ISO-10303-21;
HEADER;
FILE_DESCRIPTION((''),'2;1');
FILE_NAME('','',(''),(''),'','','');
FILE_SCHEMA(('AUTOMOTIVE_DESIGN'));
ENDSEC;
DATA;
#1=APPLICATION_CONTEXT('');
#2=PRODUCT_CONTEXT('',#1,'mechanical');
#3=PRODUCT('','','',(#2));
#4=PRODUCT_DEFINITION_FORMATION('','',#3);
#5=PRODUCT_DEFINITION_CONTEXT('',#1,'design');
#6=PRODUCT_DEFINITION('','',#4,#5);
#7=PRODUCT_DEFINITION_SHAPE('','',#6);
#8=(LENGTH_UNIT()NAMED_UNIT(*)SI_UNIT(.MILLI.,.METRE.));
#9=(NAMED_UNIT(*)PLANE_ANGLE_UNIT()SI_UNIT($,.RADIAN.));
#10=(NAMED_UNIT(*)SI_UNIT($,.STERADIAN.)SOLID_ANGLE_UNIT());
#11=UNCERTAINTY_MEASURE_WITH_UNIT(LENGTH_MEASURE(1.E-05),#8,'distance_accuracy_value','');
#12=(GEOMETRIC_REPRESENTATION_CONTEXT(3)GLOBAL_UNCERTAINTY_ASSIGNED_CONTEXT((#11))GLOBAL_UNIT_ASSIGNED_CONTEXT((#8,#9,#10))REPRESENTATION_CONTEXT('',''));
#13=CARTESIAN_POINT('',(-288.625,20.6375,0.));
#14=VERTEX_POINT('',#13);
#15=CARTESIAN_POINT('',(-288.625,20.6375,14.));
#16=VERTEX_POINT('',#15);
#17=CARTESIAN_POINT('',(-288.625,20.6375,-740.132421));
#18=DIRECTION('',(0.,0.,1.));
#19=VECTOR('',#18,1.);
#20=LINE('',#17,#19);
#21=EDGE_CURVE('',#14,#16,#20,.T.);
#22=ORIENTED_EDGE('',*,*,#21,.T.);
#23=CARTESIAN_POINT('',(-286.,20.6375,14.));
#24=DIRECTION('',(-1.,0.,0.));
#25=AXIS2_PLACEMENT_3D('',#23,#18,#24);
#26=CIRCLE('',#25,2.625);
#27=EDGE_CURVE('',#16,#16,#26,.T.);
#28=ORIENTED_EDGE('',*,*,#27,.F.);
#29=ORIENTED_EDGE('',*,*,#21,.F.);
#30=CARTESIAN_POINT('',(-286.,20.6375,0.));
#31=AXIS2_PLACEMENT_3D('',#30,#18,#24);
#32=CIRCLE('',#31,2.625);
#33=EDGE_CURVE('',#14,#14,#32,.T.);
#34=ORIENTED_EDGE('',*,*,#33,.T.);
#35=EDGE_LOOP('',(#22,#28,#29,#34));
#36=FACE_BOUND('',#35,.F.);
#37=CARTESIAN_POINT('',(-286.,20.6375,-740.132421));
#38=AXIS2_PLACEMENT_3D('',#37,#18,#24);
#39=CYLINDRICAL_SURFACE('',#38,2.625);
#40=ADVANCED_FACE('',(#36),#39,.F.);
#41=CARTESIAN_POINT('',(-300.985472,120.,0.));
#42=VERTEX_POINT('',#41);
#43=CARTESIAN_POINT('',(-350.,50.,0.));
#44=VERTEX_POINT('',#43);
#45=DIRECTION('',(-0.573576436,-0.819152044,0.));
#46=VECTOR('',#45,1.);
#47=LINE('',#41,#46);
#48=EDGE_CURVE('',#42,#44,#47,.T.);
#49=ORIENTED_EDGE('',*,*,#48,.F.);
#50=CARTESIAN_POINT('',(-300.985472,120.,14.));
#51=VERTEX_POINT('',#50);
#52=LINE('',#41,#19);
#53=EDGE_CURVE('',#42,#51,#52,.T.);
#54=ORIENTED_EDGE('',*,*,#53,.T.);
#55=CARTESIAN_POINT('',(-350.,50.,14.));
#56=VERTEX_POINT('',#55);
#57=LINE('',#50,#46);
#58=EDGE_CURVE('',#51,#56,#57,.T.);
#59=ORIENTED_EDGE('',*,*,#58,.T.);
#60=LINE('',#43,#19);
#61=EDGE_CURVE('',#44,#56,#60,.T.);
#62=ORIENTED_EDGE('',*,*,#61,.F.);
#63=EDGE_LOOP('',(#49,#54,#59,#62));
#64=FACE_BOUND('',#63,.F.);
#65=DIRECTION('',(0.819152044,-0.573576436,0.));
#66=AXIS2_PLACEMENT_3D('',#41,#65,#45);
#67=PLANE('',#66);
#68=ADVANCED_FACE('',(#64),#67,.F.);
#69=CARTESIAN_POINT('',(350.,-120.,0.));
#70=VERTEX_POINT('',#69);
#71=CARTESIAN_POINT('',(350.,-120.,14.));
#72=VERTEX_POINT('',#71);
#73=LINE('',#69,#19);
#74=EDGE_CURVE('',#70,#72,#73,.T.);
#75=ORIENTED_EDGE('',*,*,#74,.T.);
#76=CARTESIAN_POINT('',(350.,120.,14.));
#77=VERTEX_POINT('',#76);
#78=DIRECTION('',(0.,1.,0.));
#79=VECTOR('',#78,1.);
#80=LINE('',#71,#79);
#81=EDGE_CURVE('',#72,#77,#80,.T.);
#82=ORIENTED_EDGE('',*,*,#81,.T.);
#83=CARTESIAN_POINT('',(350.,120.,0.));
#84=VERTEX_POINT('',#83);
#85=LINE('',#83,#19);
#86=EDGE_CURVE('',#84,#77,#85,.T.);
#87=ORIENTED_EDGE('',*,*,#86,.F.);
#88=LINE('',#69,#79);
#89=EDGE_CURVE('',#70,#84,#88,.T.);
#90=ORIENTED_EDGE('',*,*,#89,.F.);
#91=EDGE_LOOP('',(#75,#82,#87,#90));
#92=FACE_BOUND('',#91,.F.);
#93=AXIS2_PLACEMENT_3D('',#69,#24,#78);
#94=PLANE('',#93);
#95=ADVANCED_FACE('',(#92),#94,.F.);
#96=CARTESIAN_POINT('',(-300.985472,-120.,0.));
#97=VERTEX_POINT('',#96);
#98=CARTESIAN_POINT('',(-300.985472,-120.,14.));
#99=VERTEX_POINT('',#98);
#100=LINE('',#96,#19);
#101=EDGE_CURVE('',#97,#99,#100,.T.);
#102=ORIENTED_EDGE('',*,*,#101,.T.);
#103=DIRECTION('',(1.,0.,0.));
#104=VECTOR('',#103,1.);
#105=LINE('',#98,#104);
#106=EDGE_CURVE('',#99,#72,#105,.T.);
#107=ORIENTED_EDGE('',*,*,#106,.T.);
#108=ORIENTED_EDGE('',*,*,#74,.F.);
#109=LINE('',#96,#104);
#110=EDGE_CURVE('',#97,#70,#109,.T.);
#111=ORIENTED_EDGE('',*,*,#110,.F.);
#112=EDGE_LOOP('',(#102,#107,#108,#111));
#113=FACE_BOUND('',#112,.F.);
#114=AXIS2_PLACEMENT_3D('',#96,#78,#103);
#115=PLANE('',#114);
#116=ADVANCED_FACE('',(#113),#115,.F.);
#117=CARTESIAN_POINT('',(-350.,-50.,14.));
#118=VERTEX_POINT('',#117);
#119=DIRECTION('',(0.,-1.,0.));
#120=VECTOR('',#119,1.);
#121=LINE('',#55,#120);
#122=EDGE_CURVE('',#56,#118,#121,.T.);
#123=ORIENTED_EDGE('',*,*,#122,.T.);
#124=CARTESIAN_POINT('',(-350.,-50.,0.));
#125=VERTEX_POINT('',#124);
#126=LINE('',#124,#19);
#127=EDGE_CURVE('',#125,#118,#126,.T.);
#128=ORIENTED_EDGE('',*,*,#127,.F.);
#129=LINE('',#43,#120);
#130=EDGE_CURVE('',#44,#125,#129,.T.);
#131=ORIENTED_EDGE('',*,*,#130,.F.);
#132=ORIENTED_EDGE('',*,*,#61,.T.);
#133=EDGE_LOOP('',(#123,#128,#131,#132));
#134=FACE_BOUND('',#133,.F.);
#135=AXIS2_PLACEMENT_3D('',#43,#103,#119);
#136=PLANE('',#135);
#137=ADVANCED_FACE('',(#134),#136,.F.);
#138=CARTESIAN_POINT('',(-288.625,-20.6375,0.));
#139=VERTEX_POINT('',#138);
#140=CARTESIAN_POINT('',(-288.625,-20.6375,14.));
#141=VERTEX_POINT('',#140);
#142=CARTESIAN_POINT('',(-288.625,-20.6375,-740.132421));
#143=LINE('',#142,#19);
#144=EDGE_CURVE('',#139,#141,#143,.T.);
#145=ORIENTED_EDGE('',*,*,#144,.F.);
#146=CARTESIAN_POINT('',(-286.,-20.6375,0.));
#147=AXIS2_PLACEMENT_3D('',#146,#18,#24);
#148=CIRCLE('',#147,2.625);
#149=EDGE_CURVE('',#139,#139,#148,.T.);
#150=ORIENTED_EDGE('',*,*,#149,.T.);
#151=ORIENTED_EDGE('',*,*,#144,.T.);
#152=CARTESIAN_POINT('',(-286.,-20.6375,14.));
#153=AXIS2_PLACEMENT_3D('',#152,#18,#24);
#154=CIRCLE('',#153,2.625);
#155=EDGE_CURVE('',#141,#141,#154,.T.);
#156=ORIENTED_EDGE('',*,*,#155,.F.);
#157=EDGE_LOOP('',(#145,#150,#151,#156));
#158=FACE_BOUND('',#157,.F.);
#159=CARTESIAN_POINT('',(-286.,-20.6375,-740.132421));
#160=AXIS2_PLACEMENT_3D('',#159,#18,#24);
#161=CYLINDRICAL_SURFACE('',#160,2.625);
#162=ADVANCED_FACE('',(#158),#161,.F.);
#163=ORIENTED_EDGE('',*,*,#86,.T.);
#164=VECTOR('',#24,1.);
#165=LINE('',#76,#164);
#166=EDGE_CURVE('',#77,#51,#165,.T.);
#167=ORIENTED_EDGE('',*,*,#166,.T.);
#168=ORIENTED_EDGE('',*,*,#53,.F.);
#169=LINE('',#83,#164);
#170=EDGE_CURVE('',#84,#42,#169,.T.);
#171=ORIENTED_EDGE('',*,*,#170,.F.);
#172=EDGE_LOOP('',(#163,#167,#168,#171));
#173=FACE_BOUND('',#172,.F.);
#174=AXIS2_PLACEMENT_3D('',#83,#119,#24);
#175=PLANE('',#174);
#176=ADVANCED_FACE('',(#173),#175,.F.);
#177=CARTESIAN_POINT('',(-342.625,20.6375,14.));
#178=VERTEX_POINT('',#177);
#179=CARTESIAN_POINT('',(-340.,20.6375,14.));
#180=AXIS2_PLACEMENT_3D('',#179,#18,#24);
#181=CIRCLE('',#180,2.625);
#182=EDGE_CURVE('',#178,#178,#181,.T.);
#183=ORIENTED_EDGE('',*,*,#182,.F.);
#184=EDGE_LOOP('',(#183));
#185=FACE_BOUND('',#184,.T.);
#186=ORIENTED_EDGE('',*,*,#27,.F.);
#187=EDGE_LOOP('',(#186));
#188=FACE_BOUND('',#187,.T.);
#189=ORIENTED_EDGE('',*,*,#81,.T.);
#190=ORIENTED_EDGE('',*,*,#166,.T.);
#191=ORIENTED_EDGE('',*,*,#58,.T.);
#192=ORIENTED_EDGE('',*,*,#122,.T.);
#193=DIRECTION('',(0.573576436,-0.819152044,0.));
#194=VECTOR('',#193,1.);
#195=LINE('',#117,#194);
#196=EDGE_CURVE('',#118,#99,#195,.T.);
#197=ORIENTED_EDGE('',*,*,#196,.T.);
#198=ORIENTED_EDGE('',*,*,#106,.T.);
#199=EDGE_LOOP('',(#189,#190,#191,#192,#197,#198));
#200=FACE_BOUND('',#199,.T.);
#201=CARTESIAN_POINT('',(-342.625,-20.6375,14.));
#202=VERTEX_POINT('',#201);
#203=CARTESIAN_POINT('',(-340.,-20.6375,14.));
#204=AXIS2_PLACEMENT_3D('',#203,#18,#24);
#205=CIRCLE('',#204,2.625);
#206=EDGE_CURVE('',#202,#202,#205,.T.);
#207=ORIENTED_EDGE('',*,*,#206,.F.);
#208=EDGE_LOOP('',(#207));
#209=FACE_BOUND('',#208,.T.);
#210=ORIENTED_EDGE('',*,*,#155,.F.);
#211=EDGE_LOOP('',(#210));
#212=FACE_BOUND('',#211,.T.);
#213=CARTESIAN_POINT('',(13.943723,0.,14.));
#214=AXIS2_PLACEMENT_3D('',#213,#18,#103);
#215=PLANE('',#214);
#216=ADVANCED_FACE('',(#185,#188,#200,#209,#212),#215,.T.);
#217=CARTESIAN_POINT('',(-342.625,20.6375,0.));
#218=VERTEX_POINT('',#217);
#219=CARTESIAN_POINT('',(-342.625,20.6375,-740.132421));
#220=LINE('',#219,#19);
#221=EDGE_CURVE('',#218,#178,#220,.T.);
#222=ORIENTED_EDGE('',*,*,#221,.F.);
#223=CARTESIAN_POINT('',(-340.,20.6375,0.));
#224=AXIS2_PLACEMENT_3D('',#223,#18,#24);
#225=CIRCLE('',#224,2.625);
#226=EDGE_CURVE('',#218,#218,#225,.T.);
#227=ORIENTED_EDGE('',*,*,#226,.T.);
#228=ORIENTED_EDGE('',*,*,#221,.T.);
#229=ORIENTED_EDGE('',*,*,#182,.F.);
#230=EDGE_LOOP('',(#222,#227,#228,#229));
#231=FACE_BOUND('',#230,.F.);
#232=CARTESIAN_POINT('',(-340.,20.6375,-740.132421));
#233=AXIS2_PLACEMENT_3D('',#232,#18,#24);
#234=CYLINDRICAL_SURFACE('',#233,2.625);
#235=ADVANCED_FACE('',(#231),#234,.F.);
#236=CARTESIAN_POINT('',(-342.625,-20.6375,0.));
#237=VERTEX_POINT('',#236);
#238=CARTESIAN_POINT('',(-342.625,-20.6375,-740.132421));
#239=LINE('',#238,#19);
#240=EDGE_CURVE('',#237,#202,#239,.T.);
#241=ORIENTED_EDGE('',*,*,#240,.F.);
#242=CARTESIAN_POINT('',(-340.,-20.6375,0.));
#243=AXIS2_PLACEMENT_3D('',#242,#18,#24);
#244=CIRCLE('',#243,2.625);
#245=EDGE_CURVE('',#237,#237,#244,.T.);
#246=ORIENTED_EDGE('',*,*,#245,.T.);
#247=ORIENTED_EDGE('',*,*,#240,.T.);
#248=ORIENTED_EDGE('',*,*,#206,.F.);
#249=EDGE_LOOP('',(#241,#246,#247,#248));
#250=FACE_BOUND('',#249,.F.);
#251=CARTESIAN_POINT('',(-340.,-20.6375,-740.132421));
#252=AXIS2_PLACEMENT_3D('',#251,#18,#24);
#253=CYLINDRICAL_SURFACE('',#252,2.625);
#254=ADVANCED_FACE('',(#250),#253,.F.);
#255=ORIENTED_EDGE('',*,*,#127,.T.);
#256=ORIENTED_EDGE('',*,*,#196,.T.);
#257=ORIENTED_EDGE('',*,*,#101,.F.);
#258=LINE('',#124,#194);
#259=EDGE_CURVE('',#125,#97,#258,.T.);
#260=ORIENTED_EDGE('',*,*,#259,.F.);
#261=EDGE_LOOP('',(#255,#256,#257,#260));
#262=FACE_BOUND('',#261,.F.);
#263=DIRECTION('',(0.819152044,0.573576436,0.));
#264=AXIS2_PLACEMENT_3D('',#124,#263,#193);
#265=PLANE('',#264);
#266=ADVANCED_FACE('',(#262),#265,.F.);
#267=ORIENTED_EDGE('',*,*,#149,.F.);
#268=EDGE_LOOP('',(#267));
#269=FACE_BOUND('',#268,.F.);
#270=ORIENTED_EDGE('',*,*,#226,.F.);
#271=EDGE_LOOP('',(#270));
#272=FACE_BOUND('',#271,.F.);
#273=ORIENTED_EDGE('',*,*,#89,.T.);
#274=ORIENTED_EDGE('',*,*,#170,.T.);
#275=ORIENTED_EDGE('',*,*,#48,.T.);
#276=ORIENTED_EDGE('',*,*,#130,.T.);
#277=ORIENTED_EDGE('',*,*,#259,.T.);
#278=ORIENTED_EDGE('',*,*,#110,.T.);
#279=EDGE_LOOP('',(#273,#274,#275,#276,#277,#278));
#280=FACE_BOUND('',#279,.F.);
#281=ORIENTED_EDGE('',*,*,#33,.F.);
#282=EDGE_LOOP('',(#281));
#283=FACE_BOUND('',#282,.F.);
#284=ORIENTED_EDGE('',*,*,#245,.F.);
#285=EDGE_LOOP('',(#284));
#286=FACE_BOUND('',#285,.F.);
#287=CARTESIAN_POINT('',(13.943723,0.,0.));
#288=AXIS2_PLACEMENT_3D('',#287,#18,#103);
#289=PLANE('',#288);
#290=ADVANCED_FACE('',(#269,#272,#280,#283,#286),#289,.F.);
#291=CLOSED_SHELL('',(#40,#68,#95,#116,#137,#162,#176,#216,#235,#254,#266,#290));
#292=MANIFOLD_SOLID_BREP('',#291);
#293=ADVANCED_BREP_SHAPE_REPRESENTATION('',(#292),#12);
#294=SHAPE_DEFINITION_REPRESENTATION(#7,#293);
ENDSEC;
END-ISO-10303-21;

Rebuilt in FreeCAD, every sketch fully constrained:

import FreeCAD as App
import Part
import Sketcher
Q = App.Units.Quantity


def add_polygon(sketch, points):
    """Adds a closed chain of lines whose ends are joined by coincident constraints."""
    first, n = sketch.GeometryCount, len(points)
    for a, b in zip(points, points[1:] + points[:1]):
        sketch.addGeometry(Part.LineSegment(App.Vector(*a, 0), App.Vector(*b, 0)), False)
    for i in range(n):
        sketch.addConstraint(Sketcher.Constraint("Coincident", first + i, 2, first + (i + 1) % n, 1))

doc = App.newDocument("Part")
body = doc.addObject("PartDesign::Body", "Body")

# Sketch on XY plane
sketch1 = body.newObject("Sketcher::SketchObject", "Sketch")
sketch1.AttachmentSupport = (doc.getObject("XY_Plane"), [""])
sketch1.MapMode = "FlatFace"
add_polygon(sketch1, [(-301, -120), (350, -120), (350, 120), (-301, 120), (-350, 50), (-350, -50)])  # lines 0-5
sketch1.addConstraint(Sketcher.Constraint("Horizontal", 0))
sketch1.addConstraint(Sketcher.Constraint("Vertical", 1))
sketch1.addConstraint(Sketcher.Constraint("Horizontal", 2))
sketch1.addConstraint(Sketcher.Constraint("Vertical", 4))
sketch1.addConstraint(Sketcher.Constraint("Symmetric", 2, 2, 5, 2, -1))
sketch1.addConstraint(Sketcher.Constraint("Equal", 3, 5))
sketch1.addConstraint(Sketcher.Constraint("DistanceY", 1, 1, 1, 2, Q("240 mm")))
sketch1.addConstraint(Sketcher.Constraint("DistanceY", 4, 2, 4, 1, Q("100 mm")))
sketch1.addConstraint(Sketcher.Constraint("Angle", 3, Q("-125 deg")))
sketch1.addConstraint(Sketcher.Constraint("DistanceX", -1, 1, 0, 2, Q("350 mm")))
sketch1.addConstraint(Sketcher.Constraint("DistanceX", 3, 2, -1, 1, Q("350 mm")))
pad1 = body.newObject("PartDesign::Pad", "Pad")
pad1.Profile = sketch1
pad1.Length = 14

# Sketch on XY plane
sketch2 = body.newObject("Sketcher::SketchObject", "Sketch001")
sketch2.AttachmentSupport = (doc.getObject("XY_Plane"), [""])
sketch2.MapMode = "FlatFace"
sketch2.addGeometry(Part.Circle(App.Vector(-340, 20.6, 0), App.Vector(0, 0, 1), 2.6), False)
sketch2.addGeometry(Part.Circle(App.Vector(-286, 20.6, 0), App.Vector(0, 0, 1), 2.6), False)
sketch2.addGeometry(Part.Circle(App.Vector(-286, -20.6, 0), App.Vector(0, 0, 1), 2.6), False)
sketch2.addGeometry(Part.Circle(App.Vector(-340, -20.6, 0), App.Vector(0, 0, 1), 2.6), False)
sketch2.addConstraint(Sketcher.Constraint("Equal", 0, 1))
sketch2.addConstraint(Sketcher.Constraint("Equal", 1, 2))
sketch2.addConstraint(Sketcher.Constraint("Equal", 2, 3))
sketch2.addConstraint(Sketcher.Constraint("Symmetric", 1, 3, 2, 3, -1))
sketch2.addConstraint(Sketcher.Constraint("Symmetric", 0, 3, 3, 3, -1))
sketch2.addConstraint(Sketcher.Constraint("Horizontal", 0, 3, 1, 3))
sketch2.addConstraint(Sketcher.Constraint("Diameter", 0, Q("5.25 mm")))
sketch2.addConstraint(Sketcher.Constraint("DistanceX", 0, 3, -1, 1, Q("340 mm")))
sketch2.addConstraint(Sketcher.Constraint("DistanceX", 1, 3, -1, 1, Q("286 mm")))
sketch2.addConstraint(Sketcher.Constraint("DistanceY", 2, 3, 1, 3, Q("41.275 mm")))
doc.recompute()
hole = body.newObject("PartDesign::Hole", "Hole")
hole.Profile = sketch2
hole.ThreadType = "None"
hole.Diameter = 5.25
hole.DepthType = "ThroughAll"
hole.Reversed = True

doc.recompute()
